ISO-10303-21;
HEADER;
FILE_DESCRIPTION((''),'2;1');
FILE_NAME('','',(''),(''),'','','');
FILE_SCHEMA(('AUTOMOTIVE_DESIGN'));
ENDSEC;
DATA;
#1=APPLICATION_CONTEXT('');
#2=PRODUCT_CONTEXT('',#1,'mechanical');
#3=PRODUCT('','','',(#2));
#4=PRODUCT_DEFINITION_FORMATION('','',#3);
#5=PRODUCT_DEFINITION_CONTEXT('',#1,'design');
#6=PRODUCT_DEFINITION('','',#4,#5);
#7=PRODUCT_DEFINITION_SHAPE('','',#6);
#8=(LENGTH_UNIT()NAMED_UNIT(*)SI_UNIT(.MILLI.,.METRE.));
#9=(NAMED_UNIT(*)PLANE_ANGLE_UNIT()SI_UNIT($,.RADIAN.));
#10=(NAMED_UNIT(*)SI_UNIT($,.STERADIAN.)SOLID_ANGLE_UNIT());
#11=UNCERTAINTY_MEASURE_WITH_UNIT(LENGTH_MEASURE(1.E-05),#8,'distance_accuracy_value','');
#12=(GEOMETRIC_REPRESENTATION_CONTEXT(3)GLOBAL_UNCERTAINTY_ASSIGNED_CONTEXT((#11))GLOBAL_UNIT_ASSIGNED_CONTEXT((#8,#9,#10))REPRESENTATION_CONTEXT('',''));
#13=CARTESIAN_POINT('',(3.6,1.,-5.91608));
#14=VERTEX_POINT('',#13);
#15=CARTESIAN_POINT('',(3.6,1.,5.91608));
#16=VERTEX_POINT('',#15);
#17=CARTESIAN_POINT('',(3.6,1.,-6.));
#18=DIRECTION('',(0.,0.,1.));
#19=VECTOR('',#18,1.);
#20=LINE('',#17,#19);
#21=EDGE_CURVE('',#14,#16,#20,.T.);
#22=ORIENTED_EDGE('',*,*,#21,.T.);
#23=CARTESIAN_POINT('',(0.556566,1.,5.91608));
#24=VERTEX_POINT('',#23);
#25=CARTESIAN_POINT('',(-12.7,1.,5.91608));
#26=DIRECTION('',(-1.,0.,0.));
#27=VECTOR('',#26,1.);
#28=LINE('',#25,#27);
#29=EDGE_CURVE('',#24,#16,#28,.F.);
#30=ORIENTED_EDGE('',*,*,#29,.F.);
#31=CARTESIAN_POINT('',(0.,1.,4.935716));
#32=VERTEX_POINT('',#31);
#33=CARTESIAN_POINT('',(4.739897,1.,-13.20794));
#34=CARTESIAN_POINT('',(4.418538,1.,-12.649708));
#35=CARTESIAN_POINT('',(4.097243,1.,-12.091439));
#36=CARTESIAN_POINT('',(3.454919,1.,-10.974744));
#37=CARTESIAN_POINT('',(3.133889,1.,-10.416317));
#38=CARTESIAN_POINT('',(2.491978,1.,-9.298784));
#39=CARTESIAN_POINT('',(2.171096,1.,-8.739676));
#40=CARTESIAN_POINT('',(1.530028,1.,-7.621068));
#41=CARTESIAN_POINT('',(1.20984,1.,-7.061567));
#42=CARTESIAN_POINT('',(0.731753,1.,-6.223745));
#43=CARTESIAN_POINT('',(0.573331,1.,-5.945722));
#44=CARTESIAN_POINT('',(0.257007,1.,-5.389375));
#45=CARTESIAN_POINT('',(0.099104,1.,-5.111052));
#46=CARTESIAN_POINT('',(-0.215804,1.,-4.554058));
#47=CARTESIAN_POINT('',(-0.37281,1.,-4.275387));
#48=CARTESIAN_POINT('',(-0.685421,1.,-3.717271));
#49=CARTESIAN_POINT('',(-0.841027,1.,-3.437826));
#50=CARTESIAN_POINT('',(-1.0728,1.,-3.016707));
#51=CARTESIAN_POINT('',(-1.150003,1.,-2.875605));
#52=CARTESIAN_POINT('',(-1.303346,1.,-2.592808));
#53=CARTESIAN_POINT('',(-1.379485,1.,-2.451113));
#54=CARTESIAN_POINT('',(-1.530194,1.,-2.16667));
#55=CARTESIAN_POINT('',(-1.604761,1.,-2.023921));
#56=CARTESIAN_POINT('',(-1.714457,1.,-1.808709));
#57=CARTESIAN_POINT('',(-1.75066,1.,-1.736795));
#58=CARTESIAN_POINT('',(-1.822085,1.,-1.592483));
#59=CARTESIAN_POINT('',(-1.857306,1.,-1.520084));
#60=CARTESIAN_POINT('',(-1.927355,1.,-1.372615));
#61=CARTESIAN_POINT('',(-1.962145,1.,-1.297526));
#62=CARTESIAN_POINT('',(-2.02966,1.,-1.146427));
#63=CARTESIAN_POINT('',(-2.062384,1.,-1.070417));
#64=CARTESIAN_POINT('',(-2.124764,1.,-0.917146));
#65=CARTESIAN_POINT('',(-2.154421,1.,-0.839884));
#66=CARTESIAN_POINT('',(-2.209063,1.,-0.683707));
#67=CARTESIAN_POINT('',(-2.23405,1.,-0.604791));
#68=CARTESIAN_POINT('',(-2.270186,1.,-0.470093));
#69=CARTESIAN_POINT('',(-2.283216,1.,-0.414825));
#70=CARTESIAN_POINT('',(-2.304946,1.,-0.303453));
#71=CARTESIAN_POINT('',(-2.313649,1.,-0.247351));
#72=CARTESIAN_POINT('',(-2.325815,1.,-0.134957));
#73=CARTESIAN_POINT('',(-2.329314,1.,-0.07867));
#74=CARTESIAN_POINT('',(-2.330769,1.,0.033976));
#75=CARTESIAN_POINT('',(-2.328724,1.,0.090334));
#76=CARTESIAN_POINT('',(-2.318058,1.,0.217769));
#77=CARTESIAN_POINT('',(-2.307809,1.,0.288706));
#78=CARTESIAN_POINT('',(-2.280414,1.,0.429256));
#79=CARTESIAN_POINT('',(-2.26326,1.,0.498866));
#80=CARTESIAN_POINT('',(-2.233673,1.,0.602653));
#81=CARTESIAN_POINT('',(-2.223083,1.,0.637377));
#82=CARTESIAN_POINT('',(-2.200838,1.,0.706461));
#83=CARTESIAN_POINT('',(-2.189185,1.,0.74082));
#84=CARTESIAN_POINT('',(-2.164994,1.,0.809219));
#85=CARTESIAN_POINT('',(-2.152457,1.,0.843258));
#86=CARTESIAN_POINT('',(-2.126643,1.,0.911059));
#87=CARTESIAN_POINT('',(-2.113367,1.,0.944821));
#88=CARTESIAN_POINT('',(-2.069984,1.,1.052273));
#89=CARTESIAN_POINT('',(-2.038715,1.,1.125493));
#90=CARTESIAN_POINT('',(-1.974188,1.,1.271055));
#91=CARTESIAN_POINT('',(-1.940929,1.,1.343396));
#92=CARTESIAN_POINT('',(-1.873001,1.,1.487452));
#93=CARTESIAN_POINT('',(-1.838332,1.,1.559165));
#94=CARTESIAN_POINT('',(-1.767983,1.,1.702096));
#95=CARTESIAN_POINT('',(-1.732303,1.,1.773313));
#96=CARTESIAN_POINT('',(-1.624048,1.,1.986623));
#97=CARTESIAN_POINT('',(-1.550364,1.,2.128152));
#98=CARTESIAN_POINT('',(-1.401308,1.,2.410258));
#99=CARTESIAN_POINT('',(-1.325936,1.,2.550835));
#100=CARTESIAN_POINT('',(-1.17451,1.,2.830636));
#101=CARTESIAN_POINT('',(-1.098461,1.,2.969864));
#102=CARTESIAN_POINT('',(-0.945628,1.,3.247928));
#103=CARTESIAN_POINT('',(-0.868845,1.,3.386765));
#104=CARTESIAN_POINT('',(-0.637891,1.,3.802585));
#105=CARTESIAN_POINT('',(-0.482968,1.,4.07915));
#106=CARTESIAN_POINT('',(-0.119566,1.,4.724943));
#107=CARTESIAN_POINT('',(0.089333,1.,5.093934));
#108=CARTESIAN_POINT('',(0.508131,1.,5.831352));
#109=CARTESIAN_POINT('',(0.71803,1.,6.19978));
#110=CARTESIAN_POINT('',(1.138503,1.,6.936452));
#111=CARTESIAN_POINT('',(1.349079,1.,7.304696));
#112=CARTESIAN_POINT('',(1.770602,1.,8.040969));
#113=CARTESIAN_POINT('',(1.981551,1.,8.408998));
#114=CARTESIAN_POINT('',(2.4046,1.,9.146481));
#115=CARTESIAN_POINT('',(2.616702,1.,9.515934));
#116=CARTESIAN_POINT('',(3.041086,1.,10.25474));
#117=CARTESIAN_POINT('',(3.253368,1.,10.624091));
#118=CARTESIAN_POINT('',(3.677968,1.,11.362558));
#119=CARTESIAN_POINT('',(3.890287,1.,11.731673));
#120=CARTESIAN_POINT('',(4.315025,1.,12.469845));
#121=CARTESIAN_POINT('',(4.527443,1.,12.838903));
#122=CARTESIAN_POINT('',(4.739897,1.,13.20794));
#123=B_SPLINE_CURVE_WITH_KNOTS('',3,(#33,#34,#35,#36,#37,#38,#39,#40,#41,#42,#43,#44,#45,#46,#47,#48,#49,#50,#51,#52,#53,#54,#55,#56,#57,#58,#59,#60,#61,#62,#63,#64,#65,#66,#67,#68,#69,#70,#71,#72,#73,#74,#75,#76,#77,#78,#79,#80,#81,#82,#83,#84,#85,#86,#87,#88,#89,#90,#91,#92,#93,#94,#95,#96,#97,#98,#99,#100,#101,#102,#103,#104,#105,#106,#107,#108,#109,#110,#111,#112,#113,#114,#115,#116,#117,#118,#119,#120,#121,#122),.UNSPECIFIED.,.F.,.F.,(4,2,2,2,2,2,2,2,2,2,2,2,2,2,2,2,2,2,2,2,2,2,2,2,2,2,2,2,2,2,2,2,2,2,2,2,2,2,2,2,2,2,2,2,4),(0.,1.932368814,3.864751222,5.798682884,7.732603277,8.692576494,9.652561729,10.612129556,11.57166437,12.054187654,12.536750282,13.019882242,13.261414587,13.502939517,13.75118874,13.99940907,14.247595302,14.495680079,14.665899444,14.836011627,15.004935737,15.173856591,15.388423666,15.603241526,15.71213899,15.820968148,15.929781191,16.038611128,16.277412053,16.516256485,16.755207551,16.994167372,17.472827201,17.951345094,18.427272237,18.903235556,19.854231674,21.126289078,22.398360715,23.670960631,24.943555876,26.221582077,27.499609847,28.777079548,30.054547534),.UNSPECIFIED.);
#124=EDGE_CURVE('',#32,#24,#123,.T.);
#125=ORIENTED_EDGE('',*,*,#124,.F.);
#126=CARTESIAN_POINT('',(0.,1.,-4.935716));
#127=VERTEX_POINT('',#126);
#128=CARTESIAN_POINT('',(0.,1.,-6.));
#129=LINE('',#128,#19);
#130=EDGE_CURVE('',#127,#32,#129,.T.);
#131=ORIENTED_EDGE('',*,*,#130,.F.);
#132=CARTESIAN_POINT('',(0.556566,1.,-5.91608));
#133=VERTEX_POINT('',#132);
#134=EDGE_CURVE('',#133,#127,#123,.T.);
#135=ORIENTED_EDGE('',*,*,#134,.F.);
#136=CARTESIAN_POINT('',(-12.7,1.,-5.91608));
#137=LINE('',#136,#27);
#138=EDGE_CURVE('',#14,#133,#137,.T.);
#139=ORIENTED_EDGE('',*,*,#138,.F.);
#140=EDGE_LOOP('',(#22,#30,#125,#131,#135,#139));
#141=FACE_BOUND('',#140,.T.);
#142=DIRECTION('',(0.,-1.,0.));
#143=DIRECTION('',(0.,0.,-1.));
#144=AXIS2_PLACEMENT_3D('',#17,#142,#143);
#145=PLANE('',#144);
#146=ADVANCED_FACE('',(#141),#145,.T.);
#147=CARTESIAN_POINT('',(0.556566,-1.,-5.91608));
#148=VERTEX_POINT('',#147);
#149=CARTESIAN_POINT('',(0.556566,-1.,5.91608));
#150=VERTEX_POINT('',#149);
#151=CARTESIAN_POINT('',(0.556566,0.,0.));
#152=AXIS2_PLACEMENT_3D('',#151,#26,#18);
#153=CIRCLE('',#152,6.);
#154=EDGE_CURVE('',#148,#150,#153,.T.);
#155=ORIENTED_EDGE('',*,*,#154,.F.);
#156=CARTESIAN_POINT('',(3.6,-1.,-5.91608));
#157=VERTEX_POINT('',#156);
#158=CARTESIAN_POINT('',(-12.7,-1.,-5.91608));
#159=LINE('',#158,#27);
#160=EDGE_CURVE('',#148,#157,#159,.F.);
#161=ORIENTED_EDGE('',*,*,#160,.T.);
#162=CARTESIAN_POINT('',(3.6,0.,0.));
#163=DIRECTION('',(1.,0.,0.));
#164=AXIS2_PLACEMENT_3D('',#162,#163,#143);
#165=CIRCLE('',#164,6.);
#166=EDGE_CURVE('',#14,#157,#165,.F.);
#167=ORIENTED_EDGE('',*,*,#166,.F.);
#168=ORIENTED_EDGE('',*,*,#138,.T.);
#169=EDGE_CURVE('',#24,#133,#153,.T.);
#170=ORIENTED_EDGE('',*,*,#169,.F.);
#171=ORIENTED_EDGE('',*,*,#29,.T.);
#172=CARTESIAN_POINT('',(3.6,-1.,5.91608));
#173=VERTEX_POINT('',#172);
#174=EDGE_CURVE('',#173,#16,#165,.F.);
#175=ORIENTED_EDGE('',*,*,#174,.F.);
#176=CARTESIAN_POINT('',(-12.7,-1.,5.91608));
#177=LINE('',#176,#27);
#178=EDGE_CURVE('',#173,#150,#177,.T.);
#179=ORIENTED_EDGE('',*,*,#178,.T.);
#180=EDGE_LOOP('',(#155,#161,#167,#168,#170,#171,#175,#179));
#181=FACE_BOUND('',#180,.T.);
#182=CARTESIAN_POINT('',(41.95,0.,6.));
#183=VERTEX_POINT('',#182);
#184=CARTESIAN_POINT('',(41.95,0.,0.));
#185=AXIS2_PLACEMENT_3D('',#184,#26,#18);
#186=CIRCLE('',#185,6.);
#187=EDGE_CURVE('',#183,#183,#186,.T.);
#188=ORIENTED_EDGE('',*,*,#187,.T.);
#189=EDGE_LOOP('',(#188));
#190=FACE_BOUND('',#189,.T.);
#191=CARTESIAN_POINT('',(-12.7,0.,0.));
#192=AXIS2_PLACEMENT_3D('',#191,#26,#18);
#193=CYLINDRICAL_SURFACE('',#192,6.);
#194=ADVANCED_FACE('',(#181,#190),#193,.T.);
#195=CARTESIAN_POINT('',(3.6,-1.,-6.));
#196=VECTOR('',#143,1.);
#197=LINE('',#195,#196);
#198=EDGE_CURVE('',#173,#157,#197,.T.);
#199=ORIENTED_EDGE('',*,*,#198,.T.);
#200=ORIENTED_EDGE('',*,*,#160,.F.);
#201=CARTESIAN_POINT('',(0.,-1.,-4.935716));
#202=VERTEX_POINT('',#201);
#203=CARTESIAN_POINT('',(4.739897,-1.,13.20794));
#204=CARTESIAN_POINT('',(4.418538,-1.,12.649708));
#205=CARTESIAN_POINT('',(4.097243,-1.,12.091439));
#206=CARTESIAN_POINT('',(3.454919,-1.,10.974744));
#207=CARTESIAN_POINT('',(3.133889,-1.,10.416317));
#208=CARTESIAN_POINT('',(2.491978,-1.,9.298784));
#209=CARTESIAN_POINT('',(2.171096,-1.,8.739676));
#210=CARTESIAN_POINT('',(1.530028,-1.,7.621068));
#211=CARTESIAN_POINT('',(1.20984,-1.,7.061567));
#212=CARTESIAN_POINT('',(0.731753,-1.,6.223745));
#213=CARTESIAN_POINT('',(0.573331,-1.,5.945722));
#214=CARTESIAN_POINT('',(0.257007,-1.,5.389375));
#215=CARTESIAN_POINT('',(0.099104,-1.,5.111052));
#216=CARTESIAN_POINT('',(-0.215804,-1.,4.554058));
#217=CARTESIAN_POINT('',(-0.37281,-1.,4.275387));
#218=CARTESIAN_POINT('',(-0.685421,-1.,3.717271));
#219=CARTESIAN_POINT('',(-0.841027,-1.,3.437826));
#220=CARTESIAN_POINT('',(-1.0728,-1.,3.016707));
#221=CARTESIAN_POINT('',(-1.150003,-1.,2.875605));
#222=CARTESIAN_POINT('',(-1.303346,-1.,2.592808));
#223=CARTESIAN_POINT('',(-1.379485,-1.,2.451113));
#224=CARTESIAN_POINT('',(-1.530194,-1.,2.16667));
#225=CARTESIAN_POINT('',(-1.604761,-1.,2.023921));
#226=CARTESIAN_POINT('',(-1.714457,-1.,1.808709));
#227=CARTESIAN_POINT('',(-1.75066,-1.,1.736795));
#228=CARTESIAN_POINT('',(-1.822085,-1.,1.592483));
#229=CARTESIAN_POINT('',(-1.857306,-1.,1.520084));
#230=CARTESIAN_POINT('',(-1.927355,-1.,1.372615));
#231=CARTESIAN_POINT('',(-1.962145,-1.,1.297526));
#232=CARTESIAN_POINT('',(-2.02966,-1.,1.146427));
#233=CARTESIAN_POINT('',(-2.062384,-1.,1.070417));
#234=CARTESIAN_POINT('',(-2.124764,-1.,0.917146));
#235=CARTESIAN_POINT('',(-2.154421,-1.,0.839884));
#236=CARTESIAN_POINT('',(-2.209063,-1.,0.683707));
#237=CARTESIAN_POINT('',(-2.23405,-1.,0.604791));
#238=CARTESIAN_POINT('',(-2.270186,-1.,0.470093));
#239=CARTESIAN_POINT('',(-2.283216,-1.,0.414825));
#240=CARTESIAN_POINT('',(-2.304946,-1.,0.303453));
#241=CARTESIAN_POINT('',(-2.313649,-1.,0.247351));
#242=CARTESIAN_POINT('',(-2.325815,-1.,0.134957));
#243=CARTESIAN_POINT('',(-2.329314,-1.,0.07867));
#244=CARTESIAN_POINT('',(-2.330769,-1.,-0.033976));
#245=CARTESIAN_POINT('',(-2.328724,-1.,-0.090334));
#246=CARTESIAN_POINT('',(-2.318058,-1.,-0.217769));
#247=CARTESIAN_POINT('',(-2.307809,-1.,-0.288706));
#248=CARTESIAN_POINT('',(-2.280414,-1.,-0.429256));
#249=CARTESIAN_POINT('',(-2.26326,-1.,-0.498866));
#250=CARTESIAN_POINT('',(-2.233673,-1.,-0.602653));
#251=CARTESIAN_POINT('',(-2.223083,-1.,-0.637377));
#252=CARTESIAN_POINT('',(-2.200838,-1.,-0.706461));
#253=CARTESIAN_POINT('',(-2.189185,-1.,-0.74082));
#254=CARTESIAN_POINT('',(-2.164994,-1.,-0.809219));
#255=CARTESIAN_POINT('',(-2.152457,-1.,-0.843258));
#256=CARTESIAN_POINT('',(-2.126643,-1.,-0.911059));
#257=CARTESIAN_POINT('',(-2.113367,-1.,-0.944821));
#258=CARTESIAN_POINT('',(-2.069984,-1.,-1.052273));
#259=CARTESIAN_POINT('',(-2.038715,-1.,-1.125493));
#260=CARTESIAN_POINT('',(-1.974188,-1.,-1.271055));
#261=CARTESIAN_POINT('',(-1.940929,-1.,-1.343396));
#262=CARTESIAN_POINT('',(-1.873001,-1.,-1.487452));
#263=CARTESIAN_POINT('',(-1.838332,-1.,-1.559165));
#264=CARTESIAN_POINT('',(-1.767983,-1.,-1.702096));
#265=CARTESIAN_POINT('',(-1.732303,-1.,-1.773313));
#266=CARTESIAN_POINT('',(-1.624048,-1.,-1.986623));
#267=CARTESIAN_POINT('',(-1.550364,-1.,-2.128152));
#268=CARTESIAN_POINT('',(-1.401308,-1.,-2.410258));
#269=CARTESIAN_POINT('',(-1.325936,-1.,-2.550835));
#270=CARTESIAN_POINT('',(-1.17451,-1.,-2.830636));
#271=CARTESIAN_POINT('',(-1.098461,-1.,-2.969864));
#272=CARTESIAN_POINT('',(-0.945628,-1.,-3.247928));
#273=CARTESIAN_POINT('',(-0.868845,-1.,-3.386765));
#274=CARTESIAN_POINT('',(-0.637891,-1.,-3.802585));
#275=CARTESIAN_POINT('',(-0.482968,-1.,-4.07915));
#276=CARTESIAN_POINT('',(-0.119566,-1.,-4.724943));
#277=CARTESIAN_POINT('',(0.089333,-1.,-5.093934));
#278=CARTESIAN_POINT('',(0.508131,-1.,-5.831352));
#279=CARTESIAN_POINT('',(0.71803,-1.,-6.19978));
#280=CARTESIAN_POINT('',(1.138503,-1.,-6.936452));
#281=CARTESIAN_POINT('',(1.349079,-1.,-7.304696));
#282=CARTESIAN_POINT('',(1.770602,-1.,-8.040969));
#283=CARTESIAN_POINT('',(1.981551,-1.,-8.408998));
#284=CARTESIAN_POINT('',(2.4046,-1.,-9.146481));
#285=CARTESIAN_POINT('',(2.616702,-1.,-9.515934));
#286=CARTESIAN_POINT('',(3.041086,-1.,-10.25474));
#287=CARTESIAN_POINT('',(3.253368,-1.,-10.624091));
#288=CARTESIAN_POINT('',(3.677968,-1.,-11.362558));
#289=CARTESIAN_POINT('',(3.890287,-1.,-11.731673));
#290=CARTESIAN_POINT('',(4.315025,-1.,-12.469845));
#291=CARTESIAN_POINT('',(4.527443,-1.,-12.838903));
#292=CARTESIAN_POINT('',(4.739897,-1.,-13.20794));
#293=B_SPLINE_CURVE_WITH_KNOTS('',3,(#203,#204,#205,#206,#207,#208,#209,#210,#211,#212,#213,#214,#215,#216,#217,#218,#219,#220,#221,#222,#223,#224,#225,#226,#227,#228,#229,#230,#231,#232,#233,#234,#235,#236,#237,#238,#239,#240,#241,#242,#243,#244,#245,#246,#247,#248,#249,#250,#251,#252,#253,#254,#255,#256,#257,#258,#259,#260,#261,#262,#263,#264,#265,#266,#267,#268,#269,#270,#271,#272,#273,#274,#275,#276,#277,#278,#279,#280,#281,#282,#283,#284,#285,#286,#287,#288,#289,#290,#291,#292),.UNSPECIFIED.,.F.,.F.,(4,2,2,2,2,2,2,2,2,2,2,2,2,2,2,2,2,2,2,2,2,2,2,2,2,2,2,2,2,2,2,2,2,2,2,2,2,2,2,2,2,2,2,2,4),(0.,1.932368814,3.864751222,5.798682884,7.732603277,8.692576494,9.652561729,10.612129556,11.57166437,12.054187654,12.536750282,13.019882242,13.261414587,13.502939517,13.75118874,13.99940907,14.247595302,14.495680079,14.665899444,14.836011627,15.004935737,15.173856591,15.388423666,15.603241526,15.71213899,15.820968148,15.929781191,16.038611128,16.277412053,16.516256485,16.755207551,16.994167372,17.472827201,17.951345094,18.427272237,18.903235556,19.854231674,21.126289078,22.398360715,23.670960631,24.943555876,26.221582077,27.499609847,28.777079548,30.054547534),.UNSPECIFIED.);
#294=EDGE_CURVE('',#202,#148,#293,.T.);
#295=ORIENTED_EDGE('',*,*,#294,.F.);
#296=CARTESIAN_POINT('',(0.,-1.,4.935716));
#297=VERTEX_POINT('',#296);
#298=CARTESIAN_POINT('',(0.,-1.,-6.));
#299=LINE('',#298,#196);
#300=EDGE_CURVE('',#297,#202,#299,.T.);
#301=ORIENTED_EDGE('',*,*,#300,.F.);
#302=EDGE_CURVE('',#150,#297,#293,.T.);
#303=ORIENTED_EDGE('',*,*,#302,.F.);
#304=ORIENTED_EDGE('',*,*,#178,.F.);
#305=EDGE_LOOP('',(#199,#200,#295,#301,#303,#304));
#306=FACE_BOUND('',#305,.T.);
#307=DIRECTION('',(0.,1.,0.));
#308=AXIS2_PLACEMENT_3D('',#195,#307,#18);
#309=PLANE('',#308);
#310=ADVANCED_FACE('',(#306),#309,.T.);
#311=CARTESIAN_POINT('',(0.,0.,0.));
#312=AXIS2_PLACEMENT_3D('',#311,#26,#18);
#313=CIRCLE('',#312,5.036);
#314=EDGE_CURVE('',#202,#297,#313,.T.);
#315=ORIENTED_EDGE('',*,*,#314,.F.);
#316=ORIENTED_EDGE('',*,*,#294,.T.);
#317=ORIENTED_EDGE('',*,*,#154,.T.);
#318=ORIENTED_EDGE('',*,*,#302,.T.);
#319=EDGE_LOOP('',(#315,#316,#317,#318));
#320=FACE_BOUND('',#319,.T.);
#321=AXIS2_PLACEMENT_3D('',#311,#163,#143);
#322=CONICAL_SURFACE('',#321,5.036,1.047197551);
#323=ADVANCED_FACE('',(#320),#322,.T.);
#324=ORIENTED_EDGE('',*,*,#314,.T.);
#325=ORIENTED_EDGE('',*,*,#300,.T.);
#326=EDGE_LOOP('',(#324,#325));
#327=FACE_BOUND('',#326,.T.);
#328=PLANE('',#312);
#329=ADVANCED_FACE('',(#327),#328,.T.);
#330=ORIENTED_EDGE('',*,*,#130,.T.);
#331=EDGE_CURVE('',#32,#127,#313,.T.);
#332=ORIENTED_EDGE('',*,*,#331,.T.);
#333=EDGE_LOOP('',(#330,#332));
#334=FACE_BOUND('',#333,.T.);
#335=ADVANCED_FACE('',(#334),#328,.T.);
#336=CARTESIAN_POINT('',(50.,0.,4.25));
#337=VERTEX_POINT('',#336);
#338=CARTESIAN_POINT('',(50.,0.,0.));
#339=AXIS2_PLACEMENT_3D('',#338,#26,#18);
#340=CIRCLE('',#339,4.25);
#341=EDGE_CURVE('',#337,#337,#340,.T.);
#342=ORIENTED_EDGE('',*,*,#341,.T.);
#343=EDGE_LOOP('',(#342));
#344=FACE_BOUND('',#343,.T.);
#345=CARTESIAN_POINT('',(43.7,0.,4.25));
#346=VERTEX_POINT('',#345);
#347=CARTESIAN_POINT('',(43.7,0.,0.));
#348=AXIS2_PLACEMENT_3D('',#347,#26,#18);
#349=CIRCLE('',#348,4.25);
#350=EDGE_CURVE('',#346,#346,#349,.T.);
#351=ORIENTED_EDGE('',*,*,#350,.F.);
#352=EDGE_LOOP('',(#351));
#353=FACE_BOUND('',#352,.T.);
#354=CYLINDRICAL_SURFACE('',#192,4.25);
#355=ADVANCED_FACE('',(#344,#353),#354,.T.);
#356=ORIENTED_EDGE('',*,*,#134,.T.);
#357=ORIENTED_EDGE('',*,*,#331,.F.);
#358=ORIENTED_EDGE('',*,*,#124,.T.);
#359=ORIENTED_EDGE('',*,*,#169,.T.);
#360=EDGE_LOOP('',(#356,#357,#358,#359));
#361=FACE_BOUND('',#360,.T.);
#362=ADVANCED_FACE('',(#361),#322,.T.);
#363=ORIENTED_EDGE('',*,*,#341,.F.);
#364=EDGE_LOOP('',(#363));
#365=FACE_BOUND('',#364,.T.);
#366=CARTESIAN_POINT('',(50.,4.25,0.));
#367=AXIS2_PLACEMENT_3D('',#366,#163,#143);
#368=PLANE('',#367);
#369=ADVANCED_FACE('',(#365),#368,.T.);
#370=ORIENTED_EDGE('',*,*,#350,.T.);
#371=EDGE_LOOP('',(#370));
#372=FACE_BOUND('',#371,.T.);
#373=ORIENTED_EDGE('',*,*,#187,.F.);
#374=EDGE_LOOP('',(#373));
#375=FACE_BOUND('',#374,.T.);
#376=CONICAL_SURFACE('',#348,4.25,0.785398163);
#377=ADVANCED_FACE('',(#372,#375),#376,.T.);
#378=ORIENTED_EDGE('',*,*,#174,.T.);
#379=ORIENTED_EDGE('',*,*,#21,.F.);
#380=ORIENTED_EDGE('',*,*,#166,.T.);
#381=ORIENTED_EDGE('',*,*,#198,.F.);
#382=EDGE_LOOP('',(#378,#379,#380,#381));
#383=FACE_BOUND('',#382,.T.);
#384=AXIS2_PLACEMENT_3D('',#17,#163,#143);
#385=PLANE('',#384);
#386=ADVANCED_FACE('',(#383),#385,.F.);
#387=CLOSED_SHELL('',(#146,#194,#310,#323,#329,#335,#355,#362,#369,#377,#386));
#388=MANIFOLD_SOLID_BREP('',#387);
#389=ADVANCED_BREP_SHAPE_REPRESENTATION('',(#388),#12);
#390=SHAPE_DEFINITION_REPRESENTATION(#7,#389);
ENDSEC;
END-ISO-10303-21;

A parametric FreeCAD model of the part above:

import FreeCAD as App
import Part
import Sketcher
Q = App.Units.Quantity

doc = App.newDocument("Part")
params = doc.addObject("Spreadsheet::Sheet", "Params")
for row, (alias, value) in enumerate([
    ("sketch1_width", "50 mm"),
    ("sketch1_width2", "6.3 mm"),
    ("sketch1_height", "4.25 mm"),
    ("revolution_angle", "360 deg"),
    ("sketch2_width", "2 mm"),
    ("sketch2_height", "12 mm"),
    ("pocket1_length", "3.6 mm"),
], start=1):
    params.set(f"A{row}", alias)
    params.set(f"B{row}", "=" + value)
    params.setAlias(f"B{row}", alias)

body = doc.addObject("PartDesign::Body", "Body")

sketch1 = body.newObject("Sketcher::SketchObject", "Sketch")
sketch1.AttachmentSupport = (doc.getObject("XY_Plane"), [""])
sketch1.MapMode = "FlatFace"
sketch1.addGeometry([
    Part.LineSegment(App.Vector(50, 4.2, 0), App.Vector(43.7, 4.2, 0)),
    Part.LineSegment(App.Vector(43.7, 4.2, 0), App.Vector(42, 6, 0)),
    Part.LineSegment(App.Vector(42, 6, 0), App.Vector(0.6, 6, 0)),
    Part.LineSegment(App.Vector(0.6, 6, 0), App.Vector(0, 5, 0)),
    Part.LineSegment(App.Vector(0, 5, 0), App.Vector(0, 0, 0)),
    Part.LineSegment(App.Vector(0, 0, 0), App.Vector(50, 0, 0)),
    Part.LineSegment(App.Vector(50, 0, 0), App.Vector(50, 4.2, 0)),
], False)
sketch1.addConstraint([
    Sketcher.Constraint("Coincident", 0, 2, 1, 1),
    Sketcher.Constraint("Coincident", 1, 2, 2, 1),
    Sketcher.Constraint("Coincident", 2, 2, 3, 1),
    Sketcher.Constraint("Coincident", 3, 2, 4, 1),
    Sketcher.Constraint("Coincident", 4, 2, 5, 1),
    Sketcher.Constraint("Coincident", 5, 2, 6, 1),
    Sketcher.Constraint("Coincident", 6, 2, 0, 1),
    Sketcher.Constraint("Horizontal", 0),
    Sketcher.Constraint("Horizontal", 2),
    Sketcher.Constraint("Vertical", 4),
    Sketcher.Constraint("Horizontal", 5),
    Sketcher.Constraint("Vertical", 6),
    Sketcher.Constraint("Coincident", 4, 2, -1, 1),
    Sketcher.Constraint("DistanceX", 5, 1, 5, 2, 50.0),
    Sketcher.Constraint("Angle", 1, Q("135 deg")),
    Sketcher.Constraint("Angle", 3, Q("-120 deg")),
    Sketcher.Constraint("DistanceX", 0, 2, 0, 1, 6.3),
    Sketcher.Constraint("DistanceY", -1, 1, 1, 2, 6.0),
    Sketcher.Constraint("DistanceY", 6, 1, 6, 2, 4.25),
    Sketcher.Constraint("DistanceY", 4, 2, 4, 1, 5.036),
])
sketch1.setExpression("Constraints[13]", "Params.sketch1_width")
sketch1.setExpression("Constraints[16]", "Params.sketch1_width2")
sketch1.setExpression("Constraints[18]", "Params.sketch1_height")
revolution = body.newObject("PartDesign::Revolution", "Revolution")
revolution.Profile = sketch1
revolution.ReferenceAxis = (sketch1, ["H_Axis"])
revolution.setExpression("Angle", "Params.revolution_angle")

sketch2 = body.newObject("Sketcher::SketchObject", "Sketch001")
sketch2.AttachmentSupport = (doc.getObject("YZ_Plane"), [""])
sketch2.MapMode = "FlatFace"
sketch2.addGeometry([
    Part.LineSegment(App.Vector(1, 6, 0), App.Vector(-1, 6, 0)),
    Part.LineSegment(App.Vector(-1, 6, 0), App.Vector(-1, -6, 0)),
    Part.LineSegment(App.Vector(-1, -6, 0), App.Vector(1, -6, 0)),
    Part.LineSegment(App.Vector(1, -6, 0), App.Vector(1, 6, 0)),
], False)
sketch2.addConstraint([
    Sketcher.Constraint("Coincident", 0, 2, 1, 1),
    Sketcher.Constraint("Coincident", 1, 2, 2, 1),
    Sketcher.Constraint("Coincident", 2, 2, 3, 1),
    Sketcher.Constraint("Coincident", 3, 2, 0, 1),
    Sketcher.Constraint("Horizontal", 0),
    Sketcher.Constraint("Vertical", 1),
    Sketcher.Constraint("Horizontal", 2),
    Sketcher.Constraint("Vertical", 3),
    Sketcher.Constraint("Symmetric", 0, 2, 2, 2, -1, 1),
    Sketcher.Constraint("DistanceX", 0, 2, 0, 1, 2.0),
    Sketcher.Constraint("DistanceY", 1, 2, 1, 1, 12.0),
])
sketch2.setExpression("Constraints[9]", "Params.sketch2_width")
sketch2.setExpression("Constraints[10]", "Params.sketch2_height")
pocket1 = body.newObject("PartDesign::Pocket", "Pocket")
pocket1.Profile = sketch2
pocket1.setExpression("Length", "Params.pocket1_length")
pocket1.Reversed = True

doc.recompute()
